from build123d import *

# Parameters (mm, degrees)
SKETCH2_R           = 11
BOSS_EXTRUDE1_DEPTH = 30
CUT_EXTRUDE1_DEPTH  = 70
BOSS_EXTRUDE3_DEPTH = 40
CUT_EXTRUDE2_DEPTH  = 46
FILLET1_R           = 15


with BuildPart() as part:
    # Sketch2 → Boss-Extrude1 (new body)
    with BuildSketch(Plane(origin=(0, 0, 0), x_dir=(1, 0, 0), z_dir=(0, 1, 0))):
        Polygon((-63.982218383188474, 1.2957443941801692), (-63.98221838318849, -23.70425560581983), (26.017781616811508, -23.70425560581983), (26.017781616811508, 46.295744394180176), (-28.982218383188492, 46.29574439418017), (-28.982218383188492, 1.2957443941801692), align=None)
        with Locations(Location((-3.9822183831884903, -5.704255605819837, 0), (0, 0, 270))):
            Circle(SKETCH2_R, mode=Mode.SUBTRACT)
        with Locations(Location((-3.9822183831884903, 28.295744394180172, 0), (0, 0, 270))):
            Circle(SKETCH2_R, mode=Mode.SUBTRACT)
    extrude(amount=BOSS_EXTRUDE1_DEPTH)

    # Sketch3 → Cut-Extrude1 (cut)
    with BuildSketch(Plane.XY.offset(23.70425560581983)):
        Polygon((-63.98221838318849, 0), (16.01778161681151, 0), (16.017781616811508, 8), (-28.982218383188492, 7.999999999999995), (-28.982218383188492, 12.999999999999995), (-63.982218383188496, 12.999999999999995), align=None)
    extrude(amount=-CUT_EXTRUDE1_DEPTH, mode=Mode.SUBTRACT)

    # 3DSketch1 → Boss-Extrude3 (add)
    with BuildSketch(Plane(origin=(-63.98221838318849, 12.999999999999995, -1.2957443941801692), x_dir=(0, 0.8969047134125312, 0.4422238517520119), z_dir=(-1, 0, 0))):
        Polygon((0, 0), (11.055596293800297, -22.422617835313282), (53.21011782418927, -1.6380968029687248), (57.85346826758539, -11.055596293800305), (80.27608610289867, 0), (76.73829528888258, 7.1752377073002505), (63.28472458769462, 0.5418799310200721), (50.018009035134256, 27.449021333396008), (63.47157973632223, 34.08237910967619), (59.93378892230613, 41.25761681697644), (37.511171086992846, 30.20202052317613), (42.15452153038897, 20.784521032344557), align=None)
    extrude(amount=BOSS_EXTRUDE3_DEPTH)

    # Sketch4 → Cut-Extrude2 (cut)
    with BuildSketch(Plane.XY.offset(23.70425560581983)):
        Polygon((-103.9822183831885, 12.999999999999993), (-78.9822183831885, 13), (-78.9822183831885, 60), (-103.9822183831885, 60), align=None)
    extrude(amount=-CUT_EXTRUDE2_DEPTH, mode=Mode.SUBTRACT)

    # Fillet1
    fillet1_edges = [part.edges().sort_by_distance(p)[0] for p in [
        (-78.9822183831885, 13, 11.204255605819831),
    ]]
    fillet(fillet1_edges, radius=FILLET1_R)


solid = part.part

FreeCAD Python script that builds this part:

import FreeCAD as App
import Part
import Sketcher
from FreeCAD import Vector
Q = App.Units.Quantity


def edges_at(feature, points):
    """Names of the edges that pass closest to the given points."""
    edges = feature.Shape.Edges
    near = lambda p: min(range(len(edges)), key=lambda i: edges[i].distToShape(Part.Vertex(*p))[0])
    return sorted({f"Edge{near(p) + 1}" for p in points})


def add_polygon(sketch, points):
    """Adds a closed chain of lines whose ends are joined by coincident constraints."""
    first, n = sketch.GeometryCount, len(points)
    for a, b in zip(points, points[1:] + points[:1]):
        sketch.addGeometry(Part.LineSegment(App.Vector(*a, 0), App.Vector(*b, 0)), False)
    for i in range(n):
        sketch.addConstraint(Sketcher.Constraint("Coincident", first + i, 2, first + (i + 1) % n, 1))

doc = App.newDocument("Part")
body = doc.addObject("PartDesign::Body", "Body")

# Sketch on XZ plane
sketch1 = body.newObject("Sketcher::SketchObject", "Sketch")
sketch1.AttachmentSupport = (doc.getObject("XZ_Plane"), [""])
sketch1.MapMode = "FlatFace"
add_polygon(sketch1, [(-64, -1), (-64, 24), (26, 24), (26, -46), (-29, -46), (-29, -1)])  # lines 0-5
sketch1.addGeometry(Part.Circle(Vector(-4, 6, 0), Vector(0, 0, 1), 11), False)  # 6
sketch1.addGeometry(Part.Circle(Vector(-4, -28, 0), Vector(0, 0, 1), 11), False)  # 7
sketch1.addConstraint([
    Sketcher.Constraint("Vertical", 0),
    Sketcher.Constraint("Horizontal", 1),
    Sketcher.Constraint("Vertical", 2),
    Sketcher.Constraint("Horizontal", 3),
    Sketcher.Constraint("Vertical", 4),
    Sketcher.Constraint("Horizontal", 5),
    Sketcher.Constraint("Equal", 6, 7),
    Sketcher.Constraint("Vertical", 6, 3, 7, 3),
    Sketcher.Constraint("Diameter", 6, Q("22 mm")),
    Sketcher.Constraint("DistanceX", 1, 1, 1, 2, Q("90 mm")),
    Sketcher.Constraint("DistanceX", 3, 2, 3, 1, Q("55 mm")),
    Sketcher.Constraint("DistanceY", 0, 1, 0, 2, Q("25 mm")),
    Sketcher.Constraint("DistanceY", 2, 2, 2, 1, Q("70 mm")),
    Sketcher.Constraint("DistanceY", 7, 3, 6, 3, Q("34 mm")),
    Sketcher.Constraint("DistanceX", 0, 2, 6, 3, Q("60 mm")),
    Sketcher.Constraint("DistanceY", 6, 3, 0, 2, Q("18 mm")),
    Sketcher.Constraint("DistanceX", 6, 3, -1, 1, Q("3.982218 mm")),
    Sketcher.Constraint("DistanceY", -1, 1, 6, 3, Q("5.704256 mm")),
])
pad1 = body.newObject("PartDesign::Pad", "Pad")
pad1.Profile = sketch1
pad1.Length = 30
pad1.Reversed = True

# Sketch on XY plane
sketch2 = body.newObject("Sketcher::SketchObject", "Sketch001")
sketch2.AttachmentSupport = (doc.getObject("XY_Plane"), [""])
sketch2.MapMode = "FlatFace"
sketch2.AttachmentOffset = App.Placement(Vector(0, 0, 23.704256), App.Rotation())
add_polygon(sketch2, [(-64, 0), (16, 0), (16, 8), (-29, 8), (-29, 13), (-64, 13)])  # lines 0-5
sketch2.addConstraint([
    Sketcher.Constraint("Horizontal", 0),
    Sketcher.Constraint("Vertical", 1),
    Sketcher.Constraint("Horizontal", 2),
    Sketcher.Constraint("Vertical", 3),
    Sketcher.Constraint("Horizontal", 4),
    Sketcher.Constraint("Vertical", 5),
    Sketcher.Constraint("PointOnObject", 0, 2, -1),
    Sketcher.Constraint("DistanceX", 0, 1, 0, 2, Q("80 mm")),
    Sketcher.Constraint("DistanceX", 2, 2, 2, 1, Q("45 mm")),
    Sketcher.Constraint("DistanceY", 1, 1, 1, 2, Q("8 mm")),
    Sketcher.Constraint("DistanceY", 3, 1, 3, 2, Q("5 mm")),
    Sketcher.Constraint("DistanceX", -1, 1, 0, 2, Q("16.017782 mm")),
])
pocket1 = body.newObject("PartDesign::Pocket", "Pocket")
pocket1.Profile = sketch2
pocket1.Length = 70

# Sketch on YZ plane
sketch3 = body.newObject("Sketcher::SketchObject", "Sketch002")
sketch3.AttachmentSupport = (doc.getObject("YZ_Plane"), [""])
sketch3.MapMode = "FlatFace"
sketch3.AttachmentOffset = App.Placement(Vector(0, 0, -63.982218), App.Rotation())
add_polygon(sketch3, [(13, -1), (13, 24), (60, 24), (60, 34), (85, 34), (85, 26), (70, 26), (70, -4), (85, -4), (85, -12), (60, -12), (60, -1)])  # lines 0-11
sketch3.addConstraint([
    Sketcher.Constraint("Vertical", 0),
    Sketcher.Constraint("Horizontal", 1),
    Sketcher.Constraint("Vertical", 2),
    Sketcher.Constraint("Horizontal", 3),
    Sketcher.Constraint("Vertical", 4),
    Sketcher.Constraint("Horizontal", 5),
    Sketcher.Constraint("Vertical", 6),
    Sketcher.Constraint("Horizontal", 7),
    Sketcher.Constraint("Vertical", 8),
    Sketcher.Constraint("Horizontal", 9),
    Sketcher.Constraint("Vertical", 10),
    Sketcher.Constraint("Horizontal", 11),
    Sketcher.Constraint("Vertical", 4, 2, 7, 2),
    Sketcher.Constraint("Vertical", 2, 2, 9, 2),
    Sketcher.Constraint("Equal", 9, 0),
    Sketcher.Constraint("Equal", 4, 8),
    Sketcher.Constraint("Equal", 2, 10),
    Sketcher.Constraint("DistanceX", 1, 1, 1, 2, Q("47 mm")),
    Sketcher.Constraint("DistanceX", 3, 1, 3, 2, Q("25 mm")),
    Sketcher.Constraint("DistanceX", 5, 2, 5, 1, Q("15 mm")),
    Sketcher.Constraint("DistanceY", 4, 2, 4, 1, Q("8 mm")),
    Sketcher.Constraint("DistanceY", 6, 2, 6, 1, Q("30 mm")),
    Sketcher.Constraint("DistanceX", -1, 1, 0, 2, Q("13 mm")),
    Sketcher.Constraint("DistanceY", -1, 1, 0, 2, Q("23.704256 mm")),
])
pad2 = body.newObject("PartDesign::Pad", "Pad001")
pad2.Profile = sketch3
pad2.Length = 40
pad2.Reversed = True

# Sketch on XY plane
sketch4 = body.newObject("Sketcher::SketchObject", "Sketch003")
sketch4.AttachmentSupport = (doc.getObject("XY_Plane"), [""])
sketch4.MapMode = "FlatFace"
sketch4.AttachmentOffset = App.Placement(Vector(0, 0, 23.704256), App.Rotation())
add_polygon(sketch4, [(-104, 13), (-79, 13), (-79, 60), (-104, 60)])  # lines 0-3
sketch4.addConstraint([
    Sketcher.Constraint("Horizontal", 0),
    Sketcher.Constraint("Vertical", 1),
    Sketcher.Constraint("Horizontal", 2),
    Sketcher.Constraint("Vertical", 3),
    Sketcher.Constraint("DistanceX", 0, 1, 0, 2, Q("25 mm")),
    Sketcher.Constraint("DistanceY", 1, 1, 1, 2, Q("47 mm")),
    Sketcher.Constraint("DistanceY", -1, 1, 0, 2, Q("13 mm")),
    Sketcher.Constraint("DistanceX", 0, 2, -1, 1, Q("78.982218 mm")),
])
pocket2 = body.newObject("PartDesign::Pocket", "Pocket001")
pocket2.Profile = sketch4
pocket2.Length = 46
doc.recompute()

fillet = body.newObject("PartDesign::Fillet", "Fillet")
fillet.Base = (pocket2, edges_at(pocket2, [(-78.982, 13, 11.204)]))
fillet.Radius = 15

doc.recompute()
